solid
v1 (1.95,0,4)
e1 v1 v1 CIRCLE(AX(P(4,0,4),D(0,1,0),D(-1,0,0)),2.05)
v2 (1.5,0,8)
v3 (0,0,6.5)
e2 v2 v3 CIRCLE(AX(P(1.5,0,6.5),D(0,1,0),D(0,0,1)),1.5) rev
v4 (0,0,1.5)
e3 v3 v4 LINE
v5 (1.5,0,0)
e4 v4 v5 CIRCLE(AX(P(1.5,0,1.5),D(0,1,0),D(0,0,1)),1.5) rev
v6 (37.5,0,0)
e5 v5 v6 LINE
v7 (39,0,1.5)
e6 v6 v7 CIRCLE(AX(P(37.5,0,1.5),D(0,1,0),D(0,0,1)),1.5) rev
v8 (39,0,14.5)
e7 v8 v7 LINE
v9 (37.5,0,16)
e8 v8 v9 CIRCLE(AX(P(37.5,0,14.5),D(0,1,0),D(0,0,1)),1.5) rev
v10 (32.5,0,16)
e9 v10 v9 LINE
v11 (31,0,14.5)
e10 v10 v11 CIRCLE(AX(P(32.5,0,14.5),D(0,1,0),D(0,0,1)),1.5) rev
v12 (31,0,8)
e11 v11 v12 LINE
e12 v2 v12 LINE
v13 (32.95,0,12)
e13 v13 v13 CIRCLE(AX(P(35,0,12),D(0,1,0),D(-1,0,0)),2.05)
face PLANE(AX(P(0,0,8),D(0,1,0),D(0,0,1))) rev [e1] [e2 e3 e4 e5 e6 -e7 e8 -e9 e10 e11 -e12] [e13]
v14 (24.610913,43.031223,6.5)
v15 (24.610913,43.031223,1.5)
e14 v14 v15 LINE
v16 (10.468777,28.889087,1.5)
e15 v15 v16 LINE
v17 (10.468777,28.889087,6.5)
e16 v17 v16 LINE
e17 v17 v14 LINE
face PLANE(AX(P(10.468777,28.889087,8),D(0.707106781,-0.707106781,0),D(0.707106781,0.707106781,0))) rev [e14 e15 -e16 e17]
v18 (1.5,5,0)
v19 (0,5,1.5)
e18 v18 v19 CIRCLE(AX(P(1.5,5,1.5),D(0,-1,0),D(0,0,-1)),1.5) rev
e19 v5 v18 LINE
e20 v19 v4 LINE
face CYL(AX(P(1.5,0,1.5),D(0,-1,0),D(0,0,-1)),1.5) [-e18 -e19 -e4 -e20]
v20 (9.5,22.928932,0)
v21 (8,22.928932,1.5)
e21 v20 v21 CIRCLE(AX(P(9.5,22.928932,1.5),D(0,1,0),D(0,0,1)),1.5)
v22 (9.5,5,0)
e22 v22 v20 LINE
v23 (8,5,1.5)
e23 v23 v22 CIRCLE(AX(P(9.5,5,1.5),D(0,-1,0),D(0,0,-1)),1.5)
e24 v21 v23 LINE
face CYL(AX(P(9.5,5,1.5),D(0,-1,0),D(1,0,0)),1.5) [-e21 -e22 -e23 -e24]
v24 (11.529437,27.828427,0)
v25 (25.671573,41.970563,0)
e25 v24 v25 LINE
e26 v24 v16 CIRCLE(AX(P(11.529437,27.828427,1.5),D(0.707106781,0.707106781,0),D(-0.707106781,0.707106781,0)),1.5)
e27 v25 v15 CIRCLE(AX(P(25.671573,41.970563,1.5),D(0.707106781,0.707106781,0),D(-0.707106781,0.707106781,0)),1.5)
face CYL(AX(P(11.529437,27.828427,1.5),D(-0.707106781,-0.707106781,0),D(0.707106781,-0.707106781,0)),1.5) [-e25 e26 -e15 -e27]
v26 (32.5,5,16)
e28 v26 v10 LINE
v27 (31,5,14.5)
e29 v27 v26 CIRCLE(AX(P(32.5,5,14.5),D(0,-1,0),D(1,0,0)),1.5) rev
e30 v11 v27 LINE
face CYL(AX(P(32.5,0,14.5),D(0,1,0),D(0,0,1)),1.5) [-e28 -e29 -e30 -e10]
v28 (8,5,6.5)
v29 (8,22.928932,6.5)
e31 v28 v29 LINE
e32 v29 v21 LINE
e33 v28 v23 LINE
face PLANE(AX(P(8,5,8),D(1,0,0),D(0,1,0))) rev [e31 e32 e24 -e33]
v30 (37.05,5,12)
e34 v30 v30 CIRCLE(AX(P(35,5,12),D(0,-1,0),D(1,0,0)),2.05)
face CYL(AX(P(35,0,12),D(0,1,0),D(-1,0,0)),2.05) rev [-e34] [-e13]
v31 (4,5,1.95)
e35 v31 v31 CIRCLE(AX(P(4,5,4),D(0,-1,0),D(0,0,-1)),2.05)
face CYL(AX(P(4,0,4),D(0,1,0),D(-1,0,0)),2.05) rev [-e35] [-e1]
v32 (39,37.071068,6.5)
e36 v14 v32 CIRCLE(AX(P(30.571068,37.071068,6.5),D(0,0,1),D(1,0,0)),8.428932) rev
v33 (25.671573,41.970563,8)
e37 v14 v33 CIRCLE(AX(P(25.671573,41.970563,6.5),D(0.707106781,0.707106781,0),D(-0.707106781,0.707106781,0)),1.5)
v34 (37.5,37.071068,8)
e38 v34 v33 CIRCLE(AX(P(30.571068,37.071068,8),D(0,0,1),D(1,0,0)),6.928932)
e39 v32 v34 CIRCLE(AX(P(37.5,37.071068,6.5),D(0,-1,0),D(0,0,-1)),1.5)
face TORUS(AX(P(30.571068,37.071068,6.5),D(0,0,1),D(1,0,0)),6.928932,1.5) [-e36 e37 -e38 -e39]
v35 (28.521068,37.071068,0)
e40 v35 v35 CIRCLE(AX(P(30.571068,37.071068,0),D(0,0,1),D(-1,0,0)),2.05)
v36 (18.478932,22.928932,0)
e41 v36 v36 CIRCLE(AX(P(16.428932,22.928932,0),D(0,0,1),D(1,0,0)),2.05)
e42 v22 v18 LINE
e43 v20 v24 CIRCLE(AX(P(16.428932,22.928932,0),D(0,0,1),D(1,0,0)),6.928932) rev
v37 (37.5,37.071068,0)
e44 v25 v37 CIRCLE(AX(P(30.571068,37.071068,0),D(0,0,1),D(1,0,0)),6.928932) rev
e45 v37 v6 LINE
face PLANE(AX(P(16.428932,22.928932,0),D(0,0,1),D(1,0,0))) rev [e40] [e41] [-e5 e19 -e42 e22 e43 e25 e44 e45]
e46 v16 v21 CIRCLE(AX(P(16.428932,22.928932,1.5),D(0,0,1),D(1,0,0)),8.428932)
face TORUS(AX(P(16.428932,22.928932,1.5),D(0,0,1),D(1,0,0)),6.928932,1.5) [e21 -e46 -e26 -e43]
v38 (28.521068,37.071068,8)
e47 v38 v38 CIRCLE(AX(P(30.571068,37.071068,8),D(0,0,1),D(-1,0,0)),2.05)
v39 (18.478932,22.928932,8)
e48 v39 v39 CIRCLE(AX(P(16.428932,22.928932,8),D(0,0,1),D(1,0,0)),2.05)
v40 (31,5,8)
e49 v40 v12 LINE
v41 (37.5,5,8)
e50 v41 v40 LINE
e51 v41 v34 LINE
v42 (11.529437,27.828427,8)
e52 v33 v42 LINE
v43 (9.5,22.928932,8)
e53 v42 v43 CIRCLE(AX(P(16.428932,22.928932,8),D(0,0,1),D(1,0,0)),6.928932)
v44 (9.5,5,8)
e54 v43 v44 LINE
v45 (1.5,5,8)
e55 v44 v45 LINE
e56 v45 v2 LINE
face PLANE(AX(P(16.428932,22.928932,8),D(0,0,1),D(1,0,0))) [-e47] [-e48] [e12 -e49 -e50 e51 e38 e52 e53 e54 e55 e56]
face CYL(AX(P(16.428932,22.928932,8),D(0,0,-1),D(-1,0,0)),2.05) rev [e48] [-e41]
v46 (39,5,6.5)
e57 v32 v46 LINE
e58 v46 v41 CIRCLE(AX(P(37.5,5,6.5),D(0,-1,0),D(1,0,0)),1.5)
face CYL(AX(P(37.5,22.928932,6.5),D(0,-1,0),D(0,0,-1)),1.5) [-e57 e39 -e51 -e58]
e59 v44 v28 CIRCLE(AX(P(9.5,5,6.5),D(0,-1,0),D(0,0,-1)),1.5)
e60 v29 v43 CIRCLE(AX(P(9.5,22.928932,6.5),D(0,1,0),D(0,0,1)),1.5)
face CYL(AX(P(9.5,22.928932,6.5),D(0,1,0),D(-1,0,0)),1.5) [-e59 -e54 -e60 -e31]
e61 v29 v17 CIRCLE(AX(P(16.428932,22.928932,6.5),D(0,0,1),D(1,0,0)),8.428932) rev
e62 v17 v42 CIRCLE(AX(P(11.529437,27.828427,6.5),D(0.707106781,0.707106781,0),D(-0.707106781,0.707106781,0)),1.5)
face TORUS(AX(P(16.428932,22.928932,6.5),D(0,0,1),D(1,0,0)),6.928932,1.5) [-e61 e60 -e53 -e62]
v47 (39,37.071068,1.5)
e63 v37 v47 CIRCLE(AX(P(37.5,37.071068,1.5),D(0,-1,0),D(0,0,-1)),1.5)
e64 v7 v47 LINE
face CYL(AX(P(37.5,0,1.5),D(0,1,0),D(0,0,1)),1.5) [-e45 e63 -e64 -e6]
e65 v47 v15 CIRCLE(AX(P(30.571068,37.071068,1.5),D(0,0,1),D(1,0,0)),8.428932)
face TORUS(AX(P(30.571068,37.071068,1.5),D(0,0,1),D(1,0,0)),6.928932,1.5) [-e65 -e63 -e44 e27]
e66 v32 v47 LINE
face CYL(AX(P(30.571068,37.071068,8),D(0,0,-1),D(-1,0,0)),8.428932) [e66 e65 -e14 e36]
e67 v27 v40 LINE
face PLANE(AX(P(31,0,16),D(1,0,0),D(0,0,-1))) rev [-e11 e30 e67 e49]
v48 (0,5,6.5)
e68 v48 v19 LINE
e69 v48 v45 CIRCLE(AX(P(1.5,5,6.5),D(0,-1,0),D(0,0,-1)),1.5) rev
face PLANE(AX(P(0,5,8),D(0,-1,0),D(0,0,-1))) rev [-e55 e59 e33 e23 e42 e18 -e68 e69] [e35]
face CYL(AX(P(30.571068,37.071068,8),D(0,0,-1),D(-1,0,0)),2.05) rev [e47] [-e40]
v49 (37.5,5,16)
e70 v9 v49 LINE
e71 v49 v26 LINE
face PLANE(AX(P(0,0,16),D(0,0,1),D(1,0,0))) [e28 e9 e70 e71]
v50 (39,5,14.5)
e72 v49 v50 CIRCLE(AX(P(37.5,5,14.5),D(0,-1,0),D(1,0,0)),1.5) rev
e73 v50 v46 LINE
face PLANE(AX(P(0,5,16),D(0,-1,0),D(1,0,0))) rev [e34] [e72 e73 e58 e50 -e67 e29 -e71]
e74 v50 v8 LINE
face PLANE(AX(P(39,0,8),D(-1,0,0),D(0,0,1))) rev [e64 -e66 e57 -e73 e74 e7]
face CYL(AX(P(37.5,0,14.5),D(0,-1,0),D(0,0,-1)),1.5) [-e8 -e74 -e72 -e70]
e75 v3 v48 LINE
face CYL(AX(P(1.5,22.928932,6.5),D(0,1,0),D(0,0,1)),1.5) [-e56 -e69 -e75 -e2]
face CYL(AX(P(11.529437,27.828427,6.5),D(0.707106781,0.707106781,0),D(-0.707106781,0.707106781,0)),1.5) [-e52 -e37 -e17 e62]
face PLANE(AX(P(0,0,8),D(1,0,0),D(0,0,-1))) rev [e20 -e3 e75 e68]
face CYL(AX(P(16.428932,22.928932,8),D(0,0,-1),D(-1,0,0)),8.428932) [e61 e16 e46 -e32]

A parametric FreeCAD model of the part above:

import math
import FreeCAD as App
import Part
import Sketcher
from FreeCAD import Vector
Q = App.Units.Quantity


def edges_at(feature, points):
    """Names of the edges that pass closest to the given points."""
    edges = feature.Shape.Edges
    near = lambda p: min(range(len(edges)), key=lambda i: edges[i].distToShape(Part.Vertex(*p))[0])
    return sorted({f"Edge{near(p) + 1}" for p in points})


def add_polygon(sketch, points):
    """Adds a closed chain of lines whose ends are joined by coincident constraints."""
    first, n = sketch.GeometryCount, len(points)
    for a, b in zip(points, points[1:] + points[:1]):
        sketch.addGeometry(Part.LineSegment(App.Vector(*a, 0), App.Vector(*b, 0)), False)
    for i in range(n):
        sketch.addConstraint(Sketcher.Constraint("Coincident", first + i, 2, first + (i + 1) % n, 1))

doc = App.newDocument("Part")
params = doc.addObject("Spreadsheet::Sheet", "Params")
for row, (alias, value) in enumerate([
    ("sketch1_diameter", "4.1 mm"),
    ("sketch1_width", "39 mm"),
    ("sketch1_width2", "8 mm"),
    ("sketch1_height", "5 mm"),
    ("sketch1_length", "20 mm"),
    ("pad1_length", "8 mm"),
    ("sketch2_width", "8 mm"),
    ("sketch2_height", "5 mm"),
    ("pad2_length", "8 mm"),
    ("sketch3_diameter", "4.1 mm"),
    ("fillet_radius", "1.5 mm"),
], start=1):
    params.set(f"A{row}", alias)
    params.set(f"B{row}", "=" + value)
    params.setAlias(f"B{row}", alias)

body = doc.addObject("PartDesign::Body", "Body")

# Sketch on XY plane
sketch1 = doc.addObject("Sketcher::SketchObject", "Sketch")
body.addObject(sketch1)
sketch1.AttachmentSupport = (doc.XY_Plane, [""])
sketch1.MapMode = "FlatFace"
sketch1.addGeometry([
    Part.LineSegment(Vector(0, 0, 0), Vector(39, 0, 0)),  # 0
    Part.LineSegment(Vector(39, 0, 0), Vector(39, 37.071068, 0)),  # 1
    Part.ArcOfCircle(Part.Circle(Vector(30.571068, 37.071068, 0), Vector(0, 0, 1), 8.428932), math.radians(0), math.radians(135)),  # 2
    Part.LineSegment(Vector(24.610913, 43.031223, 0), Vector(10.468777, 28.889087, 0)),  # 3
    Part.ArcOfCircle(Part.Circle(Vector(16.428932, 22.928932, 0), Vector(0, 0, 1), 8.428932), math.radians(135), math.radians(180)),  # 4
    Part.LineSegment(Vector(8, 22.928932, 0), Vector(8, 5, 0)),  # 5
    Part.LineSegment(Vector(8, 5, 0), Vector(0, 5, 0)),  # 6
    Part.LineSegment(Vector(0, 5, 0), Vector(0, 0, 0)),  # 7
    Part.Circle(Vector(16.428932, 22.928932, 0), Vector(0, 0, 1), 2.05),  # 8
    Part.Circle(Vector(30.571068, 37.071068, 0), Vector(0, 0, 1), 2.05),  # 9
], False)
sketch1.addConstraint([
    Sketcher.Constraint("Coincident", 0, 2, 1, 1),
    Sketcher.Constraint("Tangent", 1, 2, 2, 1),
    Sketcher.Constraint("Tangent", 2, 2, 3, 1),
    Sketcher.Constraint("Tangent", 3, 2, 4, 1),
    Sketcher.Constraint("Tangent", 4, 2, 5, 1),
    Sketcher.Constraint("Coincident", 5, 2, 6, 1),
    Sketcher.Constraint("Coincident", 6, 2, 7, 1),
    Sketcher.Constraint("Coincident", 7, 2, 0, 1),
    Sketcher.Constraint("Horizontal", 0),
    Sketcher.Constraint("Vertical", 1),
    Sketcher.Constraint("Vertical", 5),
    Sketcher.Constraint("Horizontal", 6),
    Sketcher.Constraint("Vertical", 7),
    Sketcher.Constraint("Coincident", 7, 2, -1, 1),
    Sketcher.Constraint("Coincident", 8, 3, 4, 3),
    Sketcher.Constraint("Coincident", 9, 3, 2, 3),
    Sketcher.Constraint("Equal", 2, 4),
    Sketcher.Constraint("Equal", 8, 9),
    Sketcher.Constraint("Diameter", 8, 4.1),
    Sketcher.Constraint("DistanceX", 0, 1, 0, 2, 39.0),
    Sketcher.Constraint("DistanceX", 6, 2, 6, 1, 8.0),
    Sketcher.Constraint("DistanceY", 7, 2, 7, 1, 5.0),
    Sketcher.Constraint("Angle", 3, Q("-135 deg")),
    Sketcher.Constraint("Distance", 3, 20.0),
    Sketcher.Constraint("DistanceY", 1, 1, 1, 2, 37.071068),
])
sketch1.setExpression("Constraints[18]", "Params.sketch1_diameter")
sketch1.setExpression("Constraints[19]", "Params.sketch1_width")
sketch1.setExpression("Constraints[20]", "Params.sketch1_width2")
sketch1.setExpression("Constraints[21]", "Params.sketch1_height")
sketch1.setExpression("Constraints[23]", "Params.sketch1_length")
pad1 = doc.addObject("PartDesign::Pad", "Pad")
body.addObject(pad1)
pad1.Profile = sketch1
pad1.setExpression("Length", "Params.pad1_length")

# Sketch on XY plane
sketch2 = doc.addObject("Sketcher::SketchObject", "Sketch001")
body.addObject(sketch2)
sketch2.AttachmentSupport = (doc.XY_Plane, [""])
sketch2.MapMode = "FlatFace"
sketch2.AttachmentOffset = App.Placement(Vector(0, 0, 8), App.Rotation())
add_polygon(sketch2, [(31, 5), (31, 0), (39, 0), (39, 5)])  # lines 0-3
sketch2.addConstraint([
    Sketcher.Constraint("Vertical", 0),
    Sketcher.Constraint("Horizontal", 1),
    Sketcher.Constraint("Vertical", 2),
    Sketcher.Constraint("Horizontal", 3),
    Sketcher.Constraint("PointOnObject", 0, 2, -1),
    Sketcher.Constraint("DistanceX", 1, 1, 1, 2, 8.0),
    Sketcher.Constraint("DistanceY", 0, 2, 0, 1, 5.0),
    Sketcher.Constraint("DistanceX", -1, 1, 0, 2, 31.0),
])
sketch2.setExpression("Constraints[9]", "Params.sketch2_width")
sketch2.setExpression("Constraints[10]", "Params.sketch2_height")
pad2 = doc.addObject("PartDesign::Pad", "Pad001")
body.addObject(pad2)
pad2.Profile = sketch2
pad2.setExpression("Length", "Params.pad2_length")

# Sketch on XZ plane
sketch3 = doc.addObject("Sketcher::SketchObject", "Sketch002")
body.addObject(sketch3)
sketch3.AttachmentSupport = (doc.XZ_Plane, [""])
sketch3.MapMode = "FlatFace"
sketch3.AttachmentOffset = App.Placement(Vector(0, 0, -5), App.Rotation())
sketch3.addGeometry([
    Part.Circle(Vector(35, 12, 0), Vector(0, 0, 1), 2.05),
    Part.Circle(Vector(4, 4, 0), Vector(0, 0, 1), 2.05),
], False)
sketch3.addConstraint([
    Sketcher.Constraint("Equal", 0, 1),
    Sketcher.Constraint("Diameter", 0, 4.1),
    Sketcher.Constraint("DistanceX", -1, 1, 0, 3, 35.0),
    Sketcher.Constraint("DistanceY", -1, 1, 0, 3, 12.0),
    Sketcher.Constraint("DistanceX", -1, 1, 1, 3, 4.0),
    Sketcher.Constraint("DistanceY", -1, 1, 1, 3, 4.0),
])
sketch3.setExpression("Constraints[1]", "Params.sketch3_diameter")
pocket1 = doc.addObject("PartDesign::Pocket", "Pocket")
body.addObject(pocket1)
pocket1.Profile = sketch3
pocket1.Type = "ThroughAll"
pocket1.Midplane = True
doc.recompute()

fillet = doc.addObject("PartDesign::Fillet", "Fillet")
body.addObject(fillet)
fillet.Base = (pocket1, edges_at(pocket1, [
    (33.797, 44.858, 0),
    (39, 18.536, 0),
    (0, 2.5, 0),
    (33.797, 44.858, 8),
    (17.54, 35.96, 8),
    (8.642, 26.155, 8),
    (8, 13.964, 8),
    (39, 21.036, 8),
    (31, 2.5, 16),
    (39, 2.5, 16),
    (0, 2.5, 8),
    (8, 13.964, 0),
    (8.642, 26.155, 0),
    (17.54, 35.96, 0),
]))
fillet.setExpression("Radius", "Params.fillet_radius")

doc.recompute()
